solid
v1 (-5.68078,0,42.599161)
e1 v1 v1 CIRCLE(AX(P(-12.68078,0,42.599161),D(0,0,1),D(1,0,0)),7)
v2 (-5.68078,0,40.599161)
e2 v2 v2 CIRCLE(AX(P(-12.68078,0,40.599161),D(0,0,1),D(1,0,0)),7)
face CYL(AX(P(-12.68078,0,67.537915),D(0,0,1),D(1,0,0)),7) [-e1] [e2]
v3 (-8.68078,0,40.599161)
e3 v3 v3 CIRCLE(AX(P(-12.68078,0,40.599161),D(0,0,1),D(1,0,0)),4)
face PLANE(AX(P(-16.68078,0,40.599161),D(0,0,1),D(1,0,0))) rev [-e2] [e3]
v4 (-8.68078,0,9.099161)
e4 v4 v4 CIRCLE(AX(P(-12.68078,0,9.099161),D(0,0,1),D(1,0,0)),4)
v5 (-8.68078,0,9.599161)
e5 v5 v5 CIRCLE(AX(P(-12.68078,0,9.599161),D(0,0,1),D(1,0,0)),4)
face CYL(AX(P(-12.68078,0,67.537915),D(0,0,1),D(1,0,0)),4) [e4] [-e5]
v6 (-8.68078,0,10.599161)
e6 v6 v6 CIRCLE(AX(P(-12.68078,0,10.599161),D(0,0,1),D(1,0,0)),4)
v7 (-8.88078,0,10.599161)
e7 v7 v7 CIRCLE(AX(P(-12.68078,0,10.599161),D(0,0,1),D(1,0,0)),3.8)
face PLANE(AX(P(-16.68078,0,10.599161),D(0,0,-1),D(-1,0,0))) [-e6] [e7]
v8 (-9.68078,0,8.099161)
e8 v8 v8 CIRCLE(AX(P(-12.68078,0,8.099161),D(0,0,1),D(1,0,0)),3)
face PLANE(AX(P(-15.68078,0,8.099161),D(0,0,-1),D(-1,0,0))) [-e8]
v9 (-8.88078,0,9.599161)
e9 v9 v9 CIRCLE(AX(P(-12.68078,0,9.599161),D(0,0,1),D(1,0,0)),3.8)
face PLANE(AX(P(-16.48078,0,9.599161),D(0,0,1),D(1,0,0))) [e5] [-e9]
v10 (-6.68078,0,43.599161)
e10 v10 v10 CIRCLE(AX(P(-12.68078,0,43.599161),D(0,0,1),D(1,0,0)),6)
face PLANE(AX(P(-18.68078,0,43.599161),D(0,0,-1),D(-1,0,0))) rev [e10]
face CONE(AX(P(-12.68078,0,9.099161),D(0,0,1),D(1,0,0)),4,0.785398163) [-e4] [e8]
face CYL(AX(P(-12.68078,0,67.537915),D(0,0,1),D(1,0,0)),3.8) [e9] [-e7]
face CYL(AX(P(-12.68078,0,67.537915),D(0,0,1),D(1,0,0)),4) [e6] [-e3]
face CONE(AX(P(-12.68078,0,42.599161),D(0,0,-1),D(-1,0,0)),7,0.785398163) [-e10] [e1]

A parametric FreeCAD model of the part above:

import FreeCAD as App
import Part
import Sketcher


def add_polygon(sketch, points):
    """Adds a closed chain of lines whose ends are joined by coincident constraints."""
    first, n = sketch.GeometryCount, len(points)
    for a, b in zip(points, points[1:] + points[:1]):
        sketch.addGeometry(Part.LineSegment(App.Vector(*a, 0), App.Vector(*b, 0)), False)
    for i in range(n):
        sketch.addConstraint(Sketcher.Constraint("Coincident", first + i, 2, first + (i + 1) % n, 1))

doc = App.newDocument("Part")
body = doc.addObject("PartDesign::Body", "Body")

# Sketch on XZ plane
sketch1 = body.newObject("Sketcher::SketchObject", "Sketch")
sketch1.AttachmentSupport = (doc.getObject("XZ_Plane"), [""])
sketch1.MapMode = "FlatFace"
add_polygon(sketch1, [(-16.68, 10.6), (-16.68, 40.6), (-19.68, 40.6), (-19.68, 42.6), (-18.68, 43.6), (-12.68, 43.6), (-12.68, 8.1), (-15.68, 8.1), (-16.68, 9.1), (-16.68, 9.6), (-16.48, 9.6), (-16.48, 10.6)])  # lines 0-11
sketch1.addGeometry(Part.LineSegment(App.Vector(-12.68, 43.6, 0), App.Vector(-12.68, 8.1, 0)), True)  # axis
sketch1.addConstraint(Sketcher.Constraint("Vertical", 0))
sketch1.addConstraint(Sketcher.Constraint("Horizontal", 1))
sketch1.addConstraint(Sketcher.Constraint("Vertical", 2))
sketch1.addConstraint(Sketcher.Constraint("Horizontal", 4))
sketch1.addConstraint(Sketcher.Constraint("Vertical", 5))
sketch1.addConstraint(Sketcher.Constraint("Horizontal", 6))
sketch1.addConstraint(Sketcher.Constraint("Vertical", 8))
sketch1.addConstraint(Sketcher.Constraint("Horizontal", 9))
sketch1.addConstraint(Sketcher.Constraint("Vertical", 10))
sketch1.addConstraint(Sketcher.Constraint("Horizontal", 11))
sketch1.addConstraint(Sketcher.Constraint("Vertical", 12))
sketch1.addConstraint(Sketcher.Constraint("Coincident", 12, 1, 4, 2))
sketch1.addConstraint(Sketcher.Constraint("Perpendicular", 3, 7))
sketch1.addConstraint(Sketcher.Constraint("Horizontal", 6, 2, 12, 2))
sketch1.addConstraint(Sketcher.Constraint("Vertical", 0, 2, 7, 2))
sketch1.addConstraint(Sketcher.Constraint("Equal", 1, 6))
sketch1.addConstraint(Sketcher.Constraint("Equal", 3, 7))
sketch1.addConstraint(Sketcher.Constraint("DistanceX", 1, 2, 1, 1, 3.0))
sketch1.addConstraint(Sketcher.Constraint("DistanceX", 4, 1, 4, 2, 6.0))
sketch1.addConstraint(Sketcher.Constraint("DistanceY", 0, 1, 0, 2, 30.0))
sketch1.addConstraint(Sketcher.Constraint("DistanceY", 2, 1, 2, 2, 2.0))
sketch1.addConstraint(Sketcher.Constraint("DistanceY", 10, 1, 10, 2, 1.0))
sketch1.addConstraint(Sketcher.Constraint("DistanceX", 9, 1, 9, 2, 0.2))
sketch1.addConstraint(Sketcher.Constraint("DistanceY", 5, 2, 5, 1, 35.5))
sketch1.addConstraint(Sketcher.Constraint("DistanceY", 8, 1, 8, 2, 0.5))
sketch1.addConstraint(Sketcher.Constraint("DistanceX", 0, 2, -1, 1, 16.68078))
sketch1.addConstraint(Sketcher.Constraint("DistanceY", -1, 1, 0, 2, 40.599161))
revolution = body.newObject("PartDesign::Revolution", "Revolution")
revolution.Profile = sketch1
revolution.ReferenceAxis = (sketch1, ["Axis0"])
revolution.Angle = 360

doc.recompute()
